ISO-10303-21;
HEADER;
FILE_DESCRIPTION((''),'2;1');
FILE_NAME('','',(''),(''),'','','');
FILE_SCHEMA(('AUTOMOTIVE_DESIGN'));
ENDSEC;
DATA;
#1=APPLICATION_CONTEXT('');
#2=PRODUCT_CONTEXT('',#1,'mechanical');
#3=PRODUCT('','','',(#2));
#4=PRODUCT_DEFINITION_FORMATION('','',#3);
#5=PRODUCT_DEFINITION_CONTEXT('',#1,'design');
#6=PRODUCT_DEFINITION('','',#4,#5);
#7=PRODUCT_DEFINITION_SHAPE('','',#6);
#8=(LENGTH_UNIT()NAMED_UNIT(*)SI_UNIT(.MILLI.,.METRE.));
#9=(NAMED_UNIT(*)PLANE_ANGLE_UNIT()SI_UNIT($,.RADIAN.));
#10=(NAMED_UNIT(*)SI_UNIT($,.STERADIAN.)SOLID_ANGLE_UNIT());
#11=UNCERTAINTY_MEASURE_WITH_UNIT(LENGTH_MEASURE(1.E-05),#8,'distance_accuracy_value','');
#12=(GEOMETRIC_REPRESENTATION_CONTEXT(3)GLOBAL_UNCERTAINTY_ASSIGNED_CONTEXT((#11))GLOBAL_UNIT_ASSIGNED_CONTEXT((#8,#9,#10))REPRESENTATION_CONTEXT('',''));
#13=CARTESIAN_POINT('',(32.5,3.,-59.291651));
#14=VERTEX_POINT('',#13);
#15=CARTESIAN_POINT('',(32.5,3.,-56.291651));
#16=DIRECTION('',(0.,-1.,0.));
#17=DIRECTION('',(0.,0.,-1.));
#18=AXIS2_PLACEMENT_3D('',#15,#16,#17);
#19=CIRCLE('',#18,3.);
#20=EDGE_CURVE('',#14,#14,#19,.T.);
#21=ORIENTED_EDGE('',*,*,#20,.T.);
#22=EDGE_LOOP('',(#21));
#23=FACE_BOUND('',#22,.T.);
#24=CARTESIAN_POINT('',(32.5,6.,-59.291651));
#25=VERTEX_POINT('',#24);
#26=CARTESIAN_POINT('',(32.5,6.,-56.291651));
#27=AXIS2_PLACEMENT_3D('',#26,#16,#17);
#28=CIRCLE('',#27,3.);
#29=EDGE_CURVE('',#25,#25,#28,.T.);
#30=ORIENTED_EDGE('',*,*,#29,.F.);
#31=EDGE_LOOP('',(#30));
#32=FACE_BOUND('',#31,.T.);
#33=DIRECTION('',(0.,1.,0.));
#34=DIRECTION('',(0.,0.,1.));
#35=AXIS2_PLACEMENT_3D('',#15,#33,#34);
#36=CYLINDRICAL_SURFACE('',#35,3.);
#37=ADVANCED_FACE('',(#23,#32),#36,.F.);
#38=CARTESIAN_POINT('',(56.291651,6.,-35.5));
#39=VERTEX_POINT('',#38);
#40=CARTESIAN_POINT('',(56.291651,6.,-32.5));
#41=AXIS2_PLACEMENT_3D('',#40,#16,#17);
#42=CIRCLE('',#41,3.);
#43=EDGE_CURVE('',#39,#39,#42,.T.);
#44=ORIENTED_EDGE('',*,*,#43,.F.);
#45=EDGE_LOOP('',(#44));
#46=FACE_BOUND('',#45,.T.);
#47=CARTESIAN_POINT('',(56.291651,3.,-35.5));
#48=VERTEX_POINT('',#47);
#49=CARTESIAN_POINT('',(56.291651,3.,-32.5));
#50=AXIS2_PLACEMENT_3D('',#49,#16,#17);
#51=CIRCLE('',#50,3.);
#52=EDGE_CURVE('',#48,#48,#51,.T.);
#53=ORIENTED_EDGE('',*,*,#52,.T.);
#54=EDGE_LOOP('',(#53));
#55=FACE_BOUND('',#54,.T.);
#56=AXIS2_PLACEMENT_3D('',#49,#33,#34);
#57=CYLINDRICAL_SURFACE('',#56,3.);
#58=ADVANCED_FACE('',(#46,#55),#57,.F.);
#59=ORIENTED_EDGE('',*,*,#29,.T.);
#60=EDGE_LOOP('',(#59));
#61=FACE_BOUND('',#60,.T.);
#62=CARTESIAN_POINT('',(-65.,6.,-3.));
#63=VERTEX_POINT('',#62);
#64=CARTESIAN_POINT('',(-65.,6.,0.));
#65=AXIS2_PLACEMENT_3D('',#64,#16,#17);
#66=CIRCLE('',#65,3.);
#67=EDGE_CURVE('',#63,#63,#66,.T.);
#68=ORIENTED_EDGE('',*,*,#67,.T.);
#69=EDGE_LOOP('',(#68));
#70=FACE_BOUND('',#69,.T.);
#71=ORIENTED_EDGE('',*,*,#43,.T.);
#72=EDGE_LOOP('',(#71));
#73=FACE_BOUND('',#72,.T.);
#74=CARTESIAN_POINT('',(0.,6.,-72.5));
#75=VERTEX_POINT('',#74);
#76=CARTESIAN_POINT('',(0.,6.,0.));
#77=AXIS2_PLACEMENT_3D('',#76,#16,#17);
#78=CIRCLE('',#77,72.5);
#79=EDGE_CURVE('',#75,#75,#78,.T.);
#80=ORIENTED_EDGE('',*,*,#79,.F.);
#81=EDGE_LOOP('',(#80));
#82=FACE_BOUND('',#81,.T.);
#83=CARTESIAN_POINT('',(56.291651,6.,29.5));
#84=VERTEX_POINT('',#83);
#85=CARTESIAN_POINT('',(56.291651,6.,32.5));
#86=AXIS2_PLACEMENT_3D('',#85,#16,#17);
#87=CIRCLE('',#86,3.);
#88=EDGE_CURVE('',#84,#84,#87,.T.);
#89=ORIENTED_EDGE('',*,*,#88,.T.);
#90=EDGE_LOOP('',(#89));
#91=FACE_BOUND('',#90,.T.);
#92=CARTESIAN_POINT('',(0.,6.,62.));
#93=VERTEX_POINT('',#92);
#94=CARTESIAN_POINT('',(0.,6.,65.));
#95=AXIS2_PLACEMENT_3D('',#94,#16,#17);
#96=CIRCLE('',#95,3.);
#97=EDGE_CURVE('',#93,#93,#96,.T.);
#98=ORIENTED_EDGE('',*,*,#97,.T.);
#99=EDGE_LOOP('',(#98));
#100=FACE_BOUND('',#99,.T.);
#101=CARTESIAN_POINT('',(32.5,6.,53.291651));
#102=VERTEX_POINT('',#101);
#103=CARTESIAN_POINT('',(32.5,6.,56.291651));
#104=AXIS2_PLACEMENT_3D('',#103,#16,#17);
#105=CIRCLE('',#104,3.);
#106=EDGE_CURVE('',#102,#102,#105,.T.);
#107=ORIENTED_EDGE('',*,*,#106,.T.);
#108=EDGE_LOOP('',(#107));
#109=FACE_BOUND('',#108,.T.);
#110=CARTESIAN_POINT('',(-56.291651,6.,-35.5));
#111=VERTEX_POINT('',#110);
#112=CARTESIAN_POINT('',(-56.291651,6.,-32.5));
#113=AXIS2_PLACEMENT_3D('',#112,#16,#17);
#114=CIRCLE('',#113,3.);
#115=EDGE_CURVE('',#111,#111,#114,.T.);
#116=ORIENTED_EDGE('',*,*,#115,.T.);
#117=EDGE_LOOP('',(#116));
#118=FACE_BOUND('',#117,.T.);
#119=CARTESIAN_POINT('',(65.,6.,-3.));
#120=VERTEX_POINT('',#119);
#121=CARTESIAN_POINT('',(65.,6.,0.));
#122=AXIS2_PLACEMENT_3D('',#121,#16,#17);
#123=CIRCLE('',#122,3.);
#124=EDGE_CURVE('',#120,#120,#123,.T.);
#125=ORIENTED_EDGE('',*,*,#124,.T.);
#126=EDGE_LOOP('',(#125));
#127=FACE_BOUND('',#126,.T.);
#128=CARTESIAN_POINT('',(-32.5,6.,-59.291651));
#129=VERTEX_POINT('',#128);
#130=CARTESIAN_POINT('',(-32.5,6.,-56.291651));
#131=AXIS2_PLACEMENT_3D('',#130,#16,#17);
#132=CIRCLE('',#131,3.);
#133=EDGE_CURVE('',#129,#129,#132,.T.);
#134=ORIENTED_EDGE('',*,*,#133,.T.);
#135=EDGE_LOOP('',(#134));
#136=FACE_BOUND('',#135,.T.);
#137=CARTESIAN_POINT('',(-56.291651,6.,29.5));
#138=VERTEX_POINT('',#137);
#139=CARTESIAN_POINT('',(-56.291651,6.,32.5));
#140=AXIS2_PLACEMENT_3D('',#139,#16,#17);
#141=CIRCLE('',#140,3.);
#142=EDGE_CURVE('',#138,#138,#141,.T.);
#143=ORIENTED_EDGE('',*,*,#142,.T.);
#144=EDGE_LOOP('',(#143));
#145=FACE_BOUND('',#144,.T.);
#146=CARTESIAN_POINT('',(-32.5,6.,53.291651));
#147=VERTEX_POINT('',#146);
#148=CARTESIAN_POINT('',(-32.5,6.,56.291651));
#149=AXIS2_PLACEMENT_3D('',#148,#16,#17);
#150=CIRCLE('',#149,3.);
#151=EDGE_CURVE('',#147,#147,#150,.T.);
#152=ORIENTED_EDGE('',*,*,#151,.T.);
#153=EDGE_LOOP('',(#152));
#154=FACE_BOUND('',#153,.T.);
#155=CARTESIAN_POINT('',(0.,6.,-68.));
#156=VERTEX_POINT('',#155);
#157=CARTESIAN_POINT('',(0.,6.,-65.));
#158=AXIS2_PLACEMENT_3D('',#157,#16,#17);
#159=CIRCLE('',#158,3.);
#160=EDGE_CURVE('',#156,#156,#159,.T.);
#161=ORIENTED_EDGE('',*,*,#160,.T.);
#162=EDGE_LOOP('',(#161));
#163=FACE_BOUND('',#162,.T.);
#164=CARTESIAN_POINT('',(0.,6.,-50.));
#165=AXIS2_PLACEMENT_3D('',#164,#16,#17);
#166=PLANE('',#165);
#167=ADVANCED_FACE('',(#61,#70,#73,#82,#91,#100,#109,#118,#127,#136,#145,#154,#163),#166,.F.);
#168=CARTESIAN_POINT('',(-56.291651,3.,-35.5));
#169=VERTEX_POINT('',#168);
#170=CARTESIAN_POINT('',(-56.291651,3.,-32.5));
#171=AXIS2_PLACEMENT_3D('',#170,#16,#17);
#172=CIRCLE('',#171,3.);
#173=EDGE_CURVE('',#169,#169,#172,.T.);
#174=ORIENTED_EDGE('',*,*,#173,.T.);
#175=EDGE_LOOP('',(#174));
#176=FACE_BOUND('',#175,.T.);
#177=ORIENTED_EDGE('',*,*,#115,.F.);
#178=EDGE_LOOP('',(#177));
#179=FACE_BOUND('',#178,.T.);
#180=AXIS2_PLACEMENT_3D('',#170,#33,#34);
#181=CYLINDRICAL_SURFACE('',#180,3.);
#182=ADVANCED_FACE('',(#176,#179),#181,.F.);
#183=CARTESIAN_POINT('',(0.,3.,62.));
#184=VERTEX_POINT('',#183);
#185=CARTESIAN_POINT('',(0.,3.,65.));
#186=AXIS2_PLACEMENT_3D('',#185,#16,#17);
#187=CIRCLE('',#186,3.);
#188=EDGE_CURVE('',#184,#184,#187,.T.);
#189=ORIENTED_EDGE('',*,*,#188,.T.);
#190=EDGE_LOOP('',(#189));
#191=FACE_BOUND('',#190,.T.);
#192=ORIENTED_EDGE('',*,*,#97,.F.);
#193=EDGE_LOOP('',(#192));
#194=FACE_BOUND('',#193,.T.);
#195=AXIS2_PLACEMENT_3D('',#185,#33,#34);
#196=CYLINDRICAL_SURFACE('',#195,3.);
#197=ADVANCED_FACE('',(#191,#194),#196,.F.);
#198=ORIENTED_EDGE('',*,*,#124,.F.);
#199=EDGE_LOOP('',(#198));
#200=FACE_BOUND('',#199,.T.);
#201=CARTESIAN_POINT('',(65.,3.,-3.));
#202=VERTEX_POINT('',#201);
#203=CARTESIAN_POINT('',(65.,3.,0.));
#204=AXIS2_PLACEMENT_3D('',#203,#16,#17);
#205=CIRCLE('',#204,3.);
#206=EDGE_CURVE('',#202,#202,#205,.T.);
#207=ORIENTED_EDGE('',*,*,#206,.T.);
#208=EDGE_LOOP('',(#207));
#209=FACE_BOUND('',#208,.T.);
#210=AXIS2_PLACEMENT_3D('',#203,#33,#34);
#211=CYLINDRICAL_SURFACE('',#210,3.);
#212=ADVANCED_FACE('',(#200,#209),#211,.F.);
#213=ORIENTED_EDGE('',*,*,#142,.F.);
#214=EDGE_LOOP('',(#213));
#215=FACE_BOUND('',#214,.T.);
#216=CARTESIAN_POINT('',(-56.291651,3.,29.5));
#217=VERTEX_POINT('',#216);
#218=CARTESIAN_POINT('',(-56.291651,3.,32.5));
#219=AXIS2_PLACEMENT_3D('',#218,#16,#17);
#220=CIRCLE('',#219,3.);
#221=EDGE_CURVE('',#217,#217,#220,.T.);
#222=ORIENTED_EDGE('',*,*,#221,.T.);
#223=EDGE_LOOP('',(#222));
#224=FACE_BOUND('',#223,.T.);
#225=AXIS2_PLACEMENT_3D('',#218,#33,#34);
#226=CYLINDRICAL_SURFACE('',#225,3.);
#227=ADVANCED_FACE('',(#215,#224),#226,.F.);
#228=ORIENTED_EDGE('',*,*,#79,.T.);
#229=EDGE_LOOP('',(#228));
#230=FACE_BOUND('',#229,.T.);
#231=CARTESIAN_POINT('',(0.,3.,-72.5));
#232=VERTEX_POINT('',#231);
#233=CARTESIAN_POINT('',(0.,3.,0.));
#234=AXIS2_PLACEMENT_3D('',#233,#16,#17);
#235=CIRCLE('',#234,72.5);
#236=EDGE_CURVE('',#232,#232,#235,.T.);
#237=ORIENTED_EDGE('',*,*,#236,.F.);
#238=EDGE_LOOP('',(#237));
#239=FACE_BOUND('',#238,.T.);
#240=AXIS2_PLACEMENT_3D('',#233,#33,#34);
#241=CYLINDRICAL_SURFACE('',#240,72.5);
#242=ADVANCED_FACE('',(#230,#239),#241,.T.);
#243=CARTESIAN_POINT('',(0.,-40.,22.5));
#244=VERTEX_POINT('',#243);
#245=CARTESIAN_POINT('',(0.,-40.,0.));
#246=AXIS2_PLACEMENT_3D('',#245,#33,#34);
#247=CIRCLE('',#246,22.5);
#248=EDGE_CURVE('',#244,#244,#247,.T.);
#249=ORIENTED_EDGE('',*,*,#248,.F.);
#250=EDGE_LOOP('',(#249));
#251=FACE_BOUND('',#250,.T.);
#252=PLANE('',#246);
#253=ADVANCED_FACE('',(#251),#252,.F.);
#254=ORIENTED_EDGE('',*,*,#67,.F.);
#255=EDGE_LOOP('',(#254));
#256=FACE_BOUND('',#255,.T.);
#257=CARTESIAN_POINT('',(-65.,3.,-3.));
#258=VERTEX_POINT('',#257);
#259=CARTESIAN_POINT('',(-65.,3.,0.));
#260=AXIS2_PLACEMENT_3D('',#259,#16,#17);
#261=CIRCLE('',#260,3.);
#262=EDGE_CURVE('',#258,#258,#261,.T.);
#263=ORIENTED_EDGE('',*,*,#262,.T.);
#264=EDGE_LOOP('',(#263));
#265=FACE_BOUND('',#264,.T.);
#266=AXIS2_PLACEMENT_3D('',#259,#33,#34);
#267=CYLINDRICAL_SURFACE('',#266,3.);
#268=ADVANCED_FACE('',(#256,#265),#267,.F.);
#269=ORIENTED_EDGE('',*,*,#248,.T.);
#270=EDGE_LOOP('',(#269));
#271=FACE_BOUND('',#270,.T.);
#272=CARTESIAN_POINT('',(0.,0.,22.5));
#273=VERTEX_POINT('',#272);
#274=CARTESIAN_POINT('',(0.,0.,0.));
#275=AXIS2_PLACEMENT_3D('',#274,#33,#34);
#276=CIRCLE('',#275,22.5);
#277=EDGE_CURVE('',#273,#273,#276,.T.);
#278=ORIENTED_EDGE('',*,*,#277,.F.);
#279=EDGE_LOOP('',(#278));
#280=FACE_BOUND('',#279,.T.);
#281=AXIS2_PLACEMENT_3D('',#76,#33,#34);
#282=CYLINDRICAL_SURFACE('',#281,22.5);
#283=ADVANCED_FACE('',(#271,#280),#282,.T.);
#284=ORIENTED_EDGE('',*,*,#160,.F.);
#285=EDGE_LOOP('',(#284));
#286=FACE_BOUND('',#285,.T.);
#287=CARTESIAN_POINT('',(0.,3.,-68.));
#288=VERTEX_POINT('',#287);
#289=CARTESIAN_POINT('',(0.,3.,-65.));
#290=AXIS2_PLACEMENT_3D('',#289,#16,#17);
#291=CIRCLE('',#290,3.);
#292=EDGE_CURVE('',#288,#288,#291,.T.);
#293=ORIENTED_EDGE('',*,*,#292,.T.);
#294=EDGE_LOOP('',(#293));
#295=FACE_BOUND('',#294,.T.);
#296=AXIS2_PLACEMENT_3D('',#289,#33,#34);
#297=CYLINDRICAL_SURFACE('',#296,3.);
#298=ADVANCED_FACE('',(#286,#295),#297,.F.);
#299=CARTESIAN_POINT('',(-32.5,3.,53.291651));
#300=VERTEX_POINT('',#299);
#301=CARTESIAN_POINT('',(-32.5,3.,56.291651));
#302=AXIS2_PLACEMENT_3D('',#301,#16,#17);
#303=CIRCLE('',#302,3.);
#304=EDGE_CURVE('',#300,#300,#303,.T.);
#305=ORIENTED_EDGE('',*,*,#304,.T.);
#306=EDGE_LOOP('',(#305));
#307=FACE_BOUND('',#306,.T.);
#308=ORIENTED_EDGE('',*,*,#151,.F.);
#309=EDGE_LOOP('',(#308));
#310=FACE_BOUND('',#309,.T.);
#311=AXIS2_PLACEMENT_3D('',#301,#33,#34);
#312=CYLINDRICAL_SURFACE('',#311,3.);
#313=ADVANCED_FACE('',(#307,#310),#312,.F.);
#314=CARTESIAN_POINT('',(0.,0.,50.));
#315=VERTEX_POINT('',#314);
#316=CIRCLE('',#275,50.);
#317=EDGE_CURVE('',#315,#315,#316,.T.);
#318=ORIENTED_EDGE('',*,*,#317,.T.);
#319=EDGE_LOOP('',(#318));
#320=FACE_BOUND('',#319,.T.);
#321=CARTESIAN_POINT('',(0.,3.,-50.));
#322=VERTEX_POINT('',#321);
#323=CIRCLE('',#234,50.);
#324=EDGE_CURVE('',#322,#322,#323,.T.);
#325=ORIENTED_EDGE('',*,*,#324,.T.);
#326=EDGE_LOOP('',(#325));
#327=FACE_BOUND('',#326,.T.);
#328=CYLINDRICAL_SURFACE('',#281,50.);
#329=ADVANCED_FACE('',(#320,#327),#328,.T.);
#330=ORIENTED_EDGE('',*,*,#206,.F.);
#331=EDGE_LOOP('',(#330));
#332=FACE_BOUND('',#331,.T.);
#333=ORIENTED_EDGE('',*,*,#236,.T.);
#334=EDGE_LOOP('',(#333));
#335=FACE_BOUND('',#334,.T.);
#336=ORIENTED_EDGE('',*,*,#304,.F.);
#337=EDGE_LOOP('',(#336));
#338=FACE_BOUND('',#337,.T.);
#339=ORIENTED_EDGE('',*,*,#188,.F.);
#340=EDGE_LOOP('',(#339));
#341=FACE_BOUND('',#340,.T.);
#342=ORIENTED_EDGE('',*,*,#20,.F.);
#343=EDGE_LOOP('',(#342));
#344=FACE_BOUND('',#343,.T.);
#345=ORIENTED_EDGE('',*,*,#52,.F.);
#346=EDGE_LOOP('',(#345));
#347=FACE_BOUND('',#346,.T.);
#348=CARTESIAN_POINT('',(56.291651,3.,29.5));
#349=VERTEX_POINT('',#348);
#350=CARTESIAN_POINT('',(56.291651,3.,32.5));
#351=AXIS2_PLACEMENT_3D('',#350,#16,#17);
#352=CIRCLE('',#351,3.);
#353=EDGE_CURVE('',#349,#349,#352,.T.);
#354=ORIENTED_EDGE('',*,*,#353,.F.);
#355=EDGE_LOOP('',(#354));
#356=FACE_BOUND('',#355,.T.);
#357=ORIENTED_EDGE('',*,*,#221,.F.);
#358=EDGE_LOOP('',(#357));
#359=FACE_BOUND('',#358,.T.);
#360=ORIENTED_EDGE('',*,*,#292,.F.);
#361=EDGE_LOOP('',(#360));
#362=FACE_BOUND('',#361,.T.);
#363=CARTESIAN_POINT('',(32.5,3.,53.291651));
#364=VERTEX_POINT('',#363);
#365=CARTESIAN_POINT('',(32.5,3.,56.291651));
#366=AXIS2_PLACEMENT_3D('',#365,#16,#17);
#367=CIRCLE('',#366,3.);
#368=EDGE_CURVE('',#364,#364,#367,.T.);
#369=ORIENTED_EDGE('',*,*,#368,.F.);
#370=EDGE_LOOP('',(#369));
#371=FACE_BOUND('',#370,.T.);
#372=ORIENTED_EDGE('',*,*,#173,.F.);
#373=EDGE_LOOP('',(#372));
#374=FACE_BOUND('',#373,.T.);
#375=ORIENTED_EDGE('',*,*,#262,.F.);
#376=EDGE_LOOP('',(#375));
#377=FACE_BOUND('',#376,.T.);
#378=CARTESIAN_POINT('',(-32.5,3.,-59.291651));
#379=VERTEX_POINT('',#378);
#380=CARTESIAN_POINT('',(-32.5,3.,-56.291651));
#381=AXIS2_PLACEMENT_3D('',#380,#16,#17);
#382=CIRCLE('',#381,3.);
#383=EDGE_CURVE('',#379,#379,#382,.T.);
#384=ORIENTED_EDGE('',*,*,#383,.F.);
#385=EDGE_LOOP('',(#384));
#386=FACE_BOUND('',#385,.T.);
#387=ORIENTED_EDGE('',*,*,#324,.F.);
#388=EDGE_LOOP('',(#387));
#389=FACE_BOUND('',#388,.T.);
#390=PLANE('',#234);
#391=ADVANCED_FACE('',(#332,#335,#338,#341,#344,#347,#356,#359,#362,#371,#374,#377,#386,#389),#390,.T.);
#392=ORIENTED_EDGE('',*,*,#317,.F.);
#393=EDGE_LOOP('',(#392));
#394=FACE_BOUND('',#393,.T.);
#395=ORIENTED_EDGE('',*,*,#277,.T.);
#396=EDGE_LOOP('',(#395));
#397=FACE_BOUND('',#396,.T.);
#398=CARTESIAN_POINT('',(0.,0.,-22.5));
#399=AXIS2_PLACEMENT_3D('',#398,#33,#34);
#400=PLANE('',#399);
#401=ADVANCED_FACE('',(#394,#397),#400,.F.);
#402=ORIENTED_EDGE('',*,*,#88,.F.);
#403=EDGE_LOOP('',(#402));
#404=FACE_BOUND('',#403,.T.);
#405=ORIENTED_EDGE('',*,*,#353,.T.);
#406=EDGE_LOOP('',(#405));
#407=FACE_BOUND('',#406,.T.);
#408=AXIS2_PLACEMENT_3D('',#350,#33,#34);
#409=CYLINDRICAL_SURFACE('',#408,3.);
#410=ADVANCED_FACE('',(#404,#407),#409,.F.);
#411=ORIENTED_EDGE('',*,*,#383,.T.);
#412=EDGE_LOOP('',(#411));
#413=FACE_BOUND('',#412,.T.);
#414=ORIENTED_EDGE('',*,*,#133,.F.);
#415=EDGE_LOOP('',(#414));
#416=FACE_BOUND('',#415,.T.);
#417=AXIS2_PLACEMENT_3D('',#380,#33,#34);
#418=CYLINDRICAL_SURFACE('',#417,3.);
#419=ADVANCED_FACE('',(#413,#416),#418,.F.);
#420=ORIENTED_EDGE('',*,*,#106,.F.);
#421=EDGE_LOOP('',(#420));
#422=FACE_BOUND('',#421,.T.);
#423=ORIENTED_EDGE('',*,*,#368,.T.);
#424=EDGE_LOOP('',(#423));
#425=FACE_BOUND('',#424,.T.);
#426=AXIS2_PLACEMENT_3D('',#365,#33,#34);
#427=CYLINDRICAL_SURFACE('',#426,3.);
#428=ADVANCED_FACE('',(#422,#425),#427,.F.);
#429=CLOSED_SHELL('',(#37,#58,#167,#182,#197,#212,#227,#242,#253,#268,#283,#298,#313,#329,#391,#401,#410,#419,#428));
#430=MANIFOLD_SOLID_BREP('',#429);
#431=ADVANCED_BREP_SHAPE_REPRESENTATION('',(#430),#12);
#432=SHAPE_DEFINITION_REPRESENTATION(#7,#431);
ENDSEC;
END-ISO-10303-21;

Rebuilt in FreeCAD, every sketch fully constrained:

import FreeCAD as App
import Part
import Sketcher

V = App.Vector


def add_polygon(sketch, points):
    """Adds a closed chain of lines whose ends are joined by coincident constraints."""
    first, n = sketch.GeometryCount, len(points)
    for a, b in zip(points, points[1:] + points[:1]):
        sketch.addGeometry(Part.LineSegment(App.Vector(*a, 0), App.Vector(*b, 0)), False)
    for i in range(n):
        sketch.addConstraint(Sketcher.Constraint("Coincident", first + i, 2, first + (i + 1) % n, 1))

doc = App.newDocument("Part")
body = doc.addObject("PartDesign::Body", "Body")

# Sketch on YZ plane
sketch1 = body.newObject("Sketcher::SketchObject", "Sketch")
sketch1.AttachmentSupport = (doc.getObject("YZ_Plane"), [""])
sketch1.MapMode = "FlatFace"
add_polygon(sketch1, [(-40, 0), (-40, -22), (0, -22), (0, -50), (6, -50), (6, 0)])  # lines 0-5
sketch1.addConstraint(Sketcher.Constraint("Vertical", 0))
sketch1.addConstraint(Sketcher.Constraint("Horizontal", 1))
sketch1.addConstraint(Sketcher.Constraint("Vertical", 2))
sketch1.addConstraint(Sketcher.Constraint("Horizontal", 3))
sketch1.addConstraint(Sketcher.Constraint("Vertical", 4))
sketch1.addConstraint(Sketcher.Constraint("Horizontal", 5))
sketch1.addConstraint(Sketcher.Constraint("PointOnObject", 1, 2, -2))
sketch1.addConstraint(Sketcher.Constraint("PointOnObject", 4, 2, -1))
sketch1.addConstraint(Sketcher.Constraint("DistanceX", 1, 1, 1, 2, 40.0))
sketch1.addConstraint(Sketcher.Constraint("DistanceX", 3, 1, 3, 2, 6.0))
sketch1.addConstraint(Sketcher.Constraint("DistanceY", 4, 1, 4, 2, 50.0))
sketch1.addConstraint(Sketcher.Constraint("DistanceY", 0, 2, 0, 1, 22.5))
revolution = body.newObject("PartDesign::Revolution", "Revolution")
revolution.Profile = sketch1
revolution.ReferenceAxis = (sketch1, ["H_Axis"])
revolution.Angle = 360

# Sketch on XZ plane
sketch2 = body.newObject("Sketcher::SketchObject", "Sketch001")
sketch2.AttachmentSupport = (doc.getObject("XZ_Plane"), [""])
sketch2.MapMode = "FlatFace"
sketch2.AttachmentOffset = App.Placement(V(0, 0, -6), App.Rotation())
sketch2.addGeometry(Part.Circle(V(0, 0, 0), V(0, 0, 1), 72.5), False)
sketch2.addGeometry(Part.Circle(V(56.3, 32.5, 0), V(0, 0, 1), 3), False)
sketch2.addGeometry(Part.Circle(V(32.5, 56.3, 0), V(0, 0, 1), 3), False)
sketch2.addGeometry(Part.Circle(V(0, 65, 0), V(0, 0, 1), 3), False)
sketch2.addGeometry(Part.Circle(V(65, 0, 0), V(0, 0, 1), 3), False)
sketch2.addGeometry(Part.Circle(V(56.3, -32.5, 0), V(0, 0, 1), 3), False)
sketch2.addGeometry(Part.Circle(V(32.5, -56.3, 0), V(0, 0, 1), 3), False)
sketch2.addGeometry(Part.Circle(V(-32.5, 56.3, 0), V(0, 0, 1), 3), False)
sketch2.addGeometry(Part.Circle(V(-56.3, 32.5, 0), V(0, 0, 1), 3), False)
sketch2.addGeometry(Part.Circle(V(-65, 0, 0), V(0, 0, 1), 3), False)
sketch2.addGeometry(Part.Circle(V(0, -65, 0), V(0, 0, 1), 3), False)
sketch2.addGeometry(Part.Circle(V(-32.5, -56.3, 0), V(0, 0, 1), 3), False)
sketch2.addGeometry(Part.Circle(V(-56.3, -32.5, 0), V(0, 0, 1), 3), False)
sketch2.addConstraint(Sketcher.Constraint("Coincident", 0, 3, -1, 1))
sketch2.addConstraint(Sketcher.Constraint("Equal", 1, 2))
sketch2.addConstraint(Sketcher.Constraint("Equal", 2, 3))
sketch2.addConstraint(Sketcher.Constraint("Equal", 3, 4))
sketch2.addConstraint(Sketcher.Constraint("Equal", 4, 5))
sketch2.addConstraint(Sketcher.Constraint("Equal", 5, 6))
sketch2.addConstraint(Sketcher.Constraint("Equal", 6, 7))
sketch2.addConstraint(Sketcher.Constraint("Equal", 7, 8))
sketch2.addConstraint(Sketcher.Constraint("Equal", 8, 9))
sketch2.addConstraint(Sketcher.Constraint("Equal", 9, 10))
sketch2.addConstraint(Sketcher.Constraint("Equal", 10, 11))
sketch2.addConstraint(Sketcher.Constraint("Equal", 11, 12))
sketch2.addConstraint(Sketcher.Constraint("Symmetric", 6, 3, 7, 3, -1, 1))
sketch2.addConstraint(Sketcher.Constraint("Symmetric", 5, 3, 8, 3, -1, 1))
sketch2.addConstraint(Sketcher.Constraint("Symmetric", 4, 3, 9, 3, -1, 1))
sketch2.addConstraint(Sketcher.Constraint("Symmetric", 3, 3, 10, 3, -1, 1))
sketch2.addConstraint(Sketcher.Constraint("Symmetric", 2, 3, 11, 3, -1, 1))
sketch2.addConstraint(Sketcher.Constraint("Symmetric", 1, 3, 12, 3, -1, 1))
sketch2.addConstraint(Sketcher.Constraint("Symmetric", 2, 3, 7, 3, -2))
sketch2.addConstraint(Sketcher.Constraint("Symmetric", 1, 3, 8, 3, -2))
sketch2.addConstraint(Sketcher.Constraint("PointOnObject", 3, 3, -2))
sketch2.addConstraint(Sketcher.Constraint("PointOnObject", 4, 3, -1))
sketch2.addConstraint(Sketcher.Constraint("Diameter", 0, 145.0))
sketch2.addConstraint(Sketcher.Constraint("Diameter", 1, 6.0))
sketch2.addConstraint(Sketcher.Constraint("DistanceY", -1, 1, 3, 3, 65.0))
sketch2.addConstraint(Sketcher.Constraint("DistanceX", -1, 1, 4, 3, 65.0))
sketch2.addConstraint(Sketcher.Constraint("DistanceY", 5, 3, 1, 3, 65.0))
sketch2.addConstraint(Sketcher.Constraint("DistanceX", 7, 3, 2, 3, 65.0))
sketch2.addConstraint(Sketcher.Constraint("DistanceX", -1, 1, 1, 3, 56.291651))
sketch2.addConstraint(Sketcher.Constraint("DistanceY", -1, 1, 2, 3, 56.291651))
pad1 = body.newObject("PartDesign::Pad", "Pad")
pad1.Profile = sketch2
pad1.Length = 3

doc.recompute()
